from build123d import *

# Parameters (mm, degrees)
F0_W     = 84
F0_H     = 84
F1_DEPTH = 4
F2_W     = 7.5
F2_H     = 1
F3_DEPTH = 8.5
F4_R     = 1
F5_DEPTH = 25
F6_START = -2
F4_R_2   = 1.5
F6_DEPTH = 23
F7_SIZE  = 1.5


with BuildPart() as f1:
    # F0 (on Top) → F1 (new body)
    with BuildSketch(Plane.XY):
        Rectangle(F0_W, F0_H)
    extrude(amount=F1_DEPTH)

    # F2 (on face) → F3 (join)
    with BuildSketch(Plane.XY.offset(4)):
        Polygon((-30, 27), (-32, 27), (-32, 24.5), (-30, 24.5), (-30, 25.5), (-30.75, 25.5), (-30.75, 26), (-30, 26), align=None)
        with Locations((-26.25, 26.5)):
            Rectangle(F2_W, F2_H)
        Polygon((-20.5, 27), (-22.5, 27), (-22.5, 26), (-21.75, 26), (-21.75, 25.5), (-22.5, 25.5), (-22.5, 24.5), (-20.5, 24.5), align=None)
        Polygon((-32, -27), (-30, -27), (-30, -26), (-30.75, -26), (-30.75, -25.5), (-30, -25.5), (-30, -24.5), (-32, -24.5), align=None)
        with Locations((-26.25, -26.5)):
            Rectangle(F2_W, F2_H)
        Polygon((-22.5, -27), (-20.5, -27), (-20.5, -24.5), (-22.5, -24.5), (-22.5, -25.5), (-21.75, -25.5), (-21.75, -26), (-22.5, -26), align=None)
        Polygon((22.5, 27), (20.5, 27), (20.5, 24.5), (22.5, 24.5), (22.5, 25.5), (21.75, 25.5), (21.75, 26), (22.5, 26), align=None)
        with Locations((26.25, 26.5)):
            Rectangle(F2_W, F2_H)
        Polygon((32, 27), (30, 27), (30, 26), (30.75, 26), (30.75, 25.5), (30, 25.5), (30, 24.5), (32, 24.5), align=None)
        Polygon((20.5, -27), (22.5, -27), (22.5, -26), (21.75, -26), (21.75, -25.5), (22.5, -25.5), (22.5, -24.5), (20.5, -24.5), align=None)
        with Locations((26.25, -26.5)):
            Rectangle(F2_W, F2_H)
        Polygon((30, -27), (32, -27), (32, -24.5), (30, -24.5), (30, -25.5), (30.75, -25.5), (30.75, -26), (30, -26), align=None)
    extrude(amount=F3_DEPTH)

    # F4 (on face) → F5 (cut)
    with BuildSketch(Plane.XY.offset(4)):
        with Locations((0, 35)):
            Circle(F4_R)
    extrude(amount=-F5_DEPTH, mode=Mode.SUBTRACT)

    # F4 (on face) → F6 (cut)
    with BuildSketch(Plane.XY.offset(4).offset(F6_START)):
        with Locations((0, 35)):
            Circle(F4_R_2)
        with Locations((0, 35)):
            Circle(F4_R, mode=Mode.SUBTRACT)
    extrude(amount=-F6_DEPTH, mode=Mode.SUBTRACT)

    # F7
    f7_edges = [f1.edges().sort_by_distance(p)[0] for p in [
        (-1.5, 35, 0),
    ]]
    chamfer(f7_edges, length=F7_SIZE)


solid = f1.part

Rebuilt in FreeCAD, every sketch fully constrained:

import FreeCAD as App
import Part
import Sketcher

V = App.Vector
Q = App.Units.Quantity


def edges_at(feature, points):
    """Names of the edges that pass closest to the given points."""
    edges = feature.Shape.Edges
    near = lambda p: min(range(len(edges)), key=lambda i: edges[i].distToShape(Part.Vertex(*p))[0])
    return sorted({f"Edge{near(p) + 1}" for p in points})

doc = App.newDocument("Part")
body = doc.addObject("PartDesign::Body", "Body")

# Sketch on XY plane
sketch1 = doc.addObject("Sketcher::SketchObject", "Sketch")
body.addObject(sketch1)
sketch1.AttachmentSupport = (doc.XY_Plane, [""])
sketch1.MapMode = "FlatFace"
sketch1.addGeometry([
    Part.LineSegment(V(-42, 42, 0), V(-42, -42, 0)),
    Part.LineSegment(V(-42, -42, 0), V(42, -42, 0)),
    Part.LineSegment(V(42, -42, 0), V(42, 42, 0)),
    Part.LineSegment(V(42, 42, 0), V(-42, 42, 0)),
], False)
sketch1.addConstraint([
    Sketcher.Constraint("Coincident", 0, 2, 1, 1),
    Sketcher.Constraint("Coincident", 1, 2, 2, 1),
    Sketcher.Constraint("Coincident", 2, 2, 3, 1),
    Sketcher.Constraint("Coincident", 3, 2, 0, 1),
    Sketcher.Constraint("Vertical", 0),
    Sketcher.Constraint("Horizontal", 1),
    Sketcher.Constraint("Vertical", 2),
    Sketcher.Constraint("Horizontal", 3),
    Sketcher.Constraint("Symmetric", 0, 2, 2, 2, -1, 1),
    Sketcher.Constraint("Equal", 3, 0),
    Sketcher.Constraint("DistanceX", 1, 1, 1, 2, Q("84 mm")),
])
pad1 = doc.addObject("PartDesign::Pad", "Pad")
body.addObject(pad1)
pad1.Profile = sketch1
pad1.Length = 4

# Sketch on XY plane
sketch2 = doc.addObject("Sketcher::SketchObject", "Sketch001")
body.addObject(sketch2)
sketch2.AttachmentSupport = (doc.XY_Plane, [""])
sketch2.MapMode = "FlatFace"
sketch2.AttachmentOffset = App.Placement(V(0, 0, 4), App.Rotation())
sketch2.addGeometry([
    Part.LineSegment(V(-32, 27, 0), V(-32, 24.5, 0)),  # 0
    Part.LineSegment(V(-32, 24.5, 0), V(-30, 24.5, 0)),  # 1
    Part.LineSegment(V(-30, 24.5, 0), V(-30, 25.5, 0)),  # 2
    Part.LineSegment(V(-30, 25.5, 0), V(-30.75, 25.5, 0)),  # 3
    Part.LineSegment(V(-30.75, 25.5, 0), V(-30.75, 26, 0)),  # 4
    Part.LineSegment(V(-30.75, 26, 0), V(-21.75, 26, 0)),  # 5
    Part.LineSegment(V(-21.75, 26, 0), V(-21.75, 25.5, 0)),  # 6
    Part.LineSegment(V(-21.75, 25.5, 0), V(-22.5, 25.5, 0)),  # 7
    Part.LineSegment(V(-22.5, 25.5, 0), V(-22.5, 24.5, 0)),  # 8
    Part.LineSegment(V(-22.5, 24.5, 0), V(-20.5, 24.5, 0)),  # 9
    Part.LineSegment(V(-20.5, 24.5, 0), V(-20.5, 27, 0)),  # 10
    Part.LineSegment(V(-20.5, 27, 0), V(-32, 27, 0)),  # 11
    Part.LineSegment(V(-32, -27, 0), V(-20.5, -27, 0)),  # 12
    Part.LineSegment(V(-20.5, -27, 0), V(-20.5, -24.5, 0)),  # 13
    Part.LineSegment(V(-20.5, -24.5, 0), V(-22.5, -24.5, 0)),  # 14
    Part.LineSegment(V(-22.5, -24.5, 0), V(-22.5, -25.5, 0)),  # 15
    Part.LineSegment(V(-22.5, -25.5, 0), V(-21.75, -25.5, 0)),  # 16
    Part.LineSegment(V(-21.75, -25.5, 0), V(-21.75, -26, 0)),  # 17
    Part.LineSegment(V(-21.75, -26, 0), V(-30.75, -26, 0)),  # 18
    Part.LineSegment(V(-30.75, -26, 0), V(-30.75, -25.5, 0)),  # 19
    Part.LineSegment(V(-30.75, -25.5, 0), V(-30, -25.5, 0)),  # 20
    Part.LineSegment(V(-30, -25.5, 0), V(-30, -24.5, 0)),  # 21
    Part.LineSegment(V(-30, -24.5, 0), V(-32, -24.5, 0)),  # 22
    Part.LineSegment(V(-32, -24.5, 0), V(-32, -27, 0)),  # 23
    Part.LineSegment(V(20.5, 27, 0), V(20.5, 24.5, 0)),  # 24
    Part.LineSegment(V(20.5, 24.5, 0), V(22.5, 24.5, 0)),  # 25
    Part.LineSegment(V(22.5, 24.5, 0), V(22.5, 25.5, 0)),  # 26
    Part.LineSegment(V(22.5, 25.5, 0), V(21.75, 25.5, 0)),  # 27
    Part.LineSegment(V(21.75, 25.5, 0), V(21.75, 26, 0)),  # 28
    Part.LineSegment(V(21.75, 26, 0), V(30.75, 26, 0)),  # 29
    Part.LineSegment(V(30.75, 26, 0), V(30.75, 25.5, 0)),  # 30
    Part.LineSegment(V(30.75, 25.5, 0), V(30, 25.5, 0)),  # 31
    Part.LineSegment(V(30, 25.5, 0), V(30, 24.5, 0)),  # 32
    Part.LineSegment(V(30, 24.5, 0), V(32, 24.5, 0)),  # 33
    Part.LineSegment(V(32, 24.5, 0), V(32, 27, 0)),  # 34
    Part.LineSegment(V(32, 27, 0), V(20.5, 27, 0)),  # 35
    Part.LineSegment(V(20.5, -27, 0), V(32, -27, 0)),  # 36
    Part.LineSegment(V(32, -27, 0), V(32, -24.5, 0)),  # 37
    Part.LineSegment(V(32, -24.5, 0), V(30, -24.5, 0)),  # 38
    Part.LineSegment(V(30, -24.5, 0), V(30, -25.5, 0)),  # 39
    Part.LineSegment(V(30, -25.5, 0), V(30.75, -25.5, 0)),  # 40
    Part.LineSegment(V(30.75, -25.5, 0), V(30.75, -26, 0)),  # 41
    Part.LineSegment(V(30.75, -26, 0), V(21.75, -26, 0)),  # 42
    Part.LineSegment(V(21.75, -26, 0), V(21.75, -25.5, 0)),  # 43
    Part.LineSegment(V(21.75, -25.5, 0), V(22.5, -25.5, 0)),  # 44
    Part.LineSegment(V(22.5, -25.5, 0), V(22.5, -24.5, 0)),  # 45
    Part.LineSegment(V(22.5, -24.5, 0), V(20.5, -24.5, 0)),  # 46
    Part.LineSegment(V(20.5, -24.5, 0), V(20.5, -27, 0)),  # 47
], False)
sketch2.addConstraint([
    Sketcher.Constraint("Coincident", 0, 2, 1, 1),
    Sketcher.Constraint("Coincident", 1, 2, 2, 1),
    Sketcher.Constraint("Coincident", 2, 2, 3, 1),
    Sketcher.Constraint("Coincident", 3, 2, 4, 1),
    Sketcher.Constraint("Coincident", 4, 2, 5, 1),
    Sketcher.Constraint("Coincident", 5, 2, 6, 1),
    Sketcher.Constraint("Coincident", 6, 2, 7, 1),
    Sketcher.Constraint("Coincident", 7, 2, 8, 1),
    Sketcher.Constraint("Coincident", 8, 2, 9, 1),
    Sketcher.Constraint("Coincident", 9, 2, 10, 1),
    Sketcher.Constraint("Coincident", 10, 2, 11, 1),
    Sketcher.Constraint("Coincident", 11, 2, 0, 1),
    Sketcher.Constraint("Coincident", 12, 2, 13, 1),
    Sketcher.Constraint("Coincident", 13, 2, 14, 1),
    Sketcher.Constraint("Coincident", 14, 2, 15, 1),
    Sketcher.Constraint("Coincident", 15, 2, 16, 1),
    Sketcher.Constraint("Coincident", 16, 2, 17, 1),
    Sketcher.Constraint("Coincident", 17, 2, 18, 1),
    Sketcher.Constraint("Coincident", 18, 2, 19, 1),
    Sketcher.Constraint("Coincident", 19, 2, 20, 1),
    Sketcher.Constraint("Coincident", 20, 2, 21, 1),
    Sketcher.Constraint("Coincident", 21, 2, 22, 1),
    Sketcher.Constraint("Coincident", 22, 2, 23, 1),
    Sketcher.Constraint("Coincident", 23, 2, 12, 1),
    Sketcher.Constraint("Coincident", 24, 2, 25, 1),
    Sketcher.Constraint("Coincident", 25, 2, 26, 1),
    Sketcher.Constraint("Coincident", 26, 2, 27, 1),
    Sketcher.Constraint("Coincident", 27, 2, 28, 1),
    Sketcher.Constraint("Coincident", 28, 2, 29, 1),
    Sketcher.Constraint("Coincident", 29, 2, 30, 1),
    Sketcher.Constraint("Coincident", 30, 2, 31, 1),
    Sketcher.Constraint("Coincident", 31, 2, 32, 1),
    Sketcher.Constraint("Coincident", 32, 2, 33, 1),
    Sketcher.Constraint("Coincident", 33, 2, 34, 1),
    Sketcher.Constraint("Coincident", 34, 2, 35, 1),
    Sketcher.Constraint("Coincident", 35, 2, 24, 1),
    Sketcher.Constraint("Coincident", 36, 2, 37, 1),
    Sketcher.Constraint("Coincident", 37, 2, 38, 1),
    Sketcher.Constraint("Coincident", 38, 2, 39, 1),
    Sketcher.Constraint("Coincident", 39, 2, 40, 1),
    Sketcher.Constraint("Coincident", 40, 2, 41, 1),
    Sketcher.Constraint("Coincident", 41, 2, 42, 1),
    Sketcher.Constraint("Coincident", 42, 2, 43, 1),
    Sketcher.Constraint("Coincident", 43, 2, 44, 1),
    Sketcher.Constraint("Coincident", 44, 2, 45, 1),
    Sketcher.Constraint("Coincident", 45, 2, 46, 1),
    Sketcher.Constraint("Coincident", 46, 2, 47, 1),
    Sketcher.Constraint("Coincident", 47, 2, 36, 1),
    Sketcher.Constraint("Vertical", 0),
    Sketcher.Constraint("Horizontal", 1),
    Sketcher.Constraint("Vertical", 2),
    Sketcher.Constraint("Horizontal", 3),
    Sketcher.Constraint("Vertical", 4),
    Sketcher.Constraint("Horizontal", 5),
    Sketcher.Constraint("Vertical", 6),
    Sketcher.Constraint("Horizontal", 7),
    Sketcher.Constraint("Vertical", 8),
    Sketcher.Constraint("Horizontal", 9),
    Sketcher.Constraint("Vertical", 10),
    Sketcher.Constraint("Horizontal", 11),
    Sketcher.Constraint("Horizontal", 12),
    Sketcher.Constraint("Vertical", 13),
    Sketcher.Constraint("Horizontal", 14),
    Sketcher.Constraint("Vertical", 15),
    Sketcher.Constraint("Horizontal", 16),
    Sketcher.Constraint("Vertical", 17),
    Sketcher.Constraint("Horizontal", 18),
    Sketcher.Constraint("Vertical", 19),
    Sketcher.Constraint("Horizontal", 20),
    Sketcher.Constraint("Vertical", 21),
    Sketcher.Constraint("Horizontal", 22),
    Sketcher.Constraint("Vertical", 23),
    Sketcher.Constraint("Vertical", 24),
    Sketcher.Constraint("Horizontal", 25),
    Sketcher.Constraint("Vertical", 26),
    Sketcher.Constraint("Horizontal", 27),
    Sketcher.Constraint("Vertical", 28),
    Sketcher.Constraint("Horizontal", 29),
    Sketcher.Constraint("Vertical", 30),
    Sketcher.Constraint("Horizontal", 31),
    Sketcher.Constraint("Vertical", 32),
    Sketcher.Constraint("Horizontal", 33),
    Sketcher.Constraint("Vertical", 34),
    Sketcher.Constraint("Horizontal", 35),
    Sketcher.Constraint("Horizontal", 36),
    Sketcher.Constraint("Vertical", 37),
    Sketcher.Constraint("Horizontal", 38),
    Sketcher.Constraint("Vertical", 39),
    Sketcher.Constraint("Horizontal", 40),
    Sketcher.Constraint("Vertical", 41),
    Sketcher.Constraint("Horizontal", 42),
    Sketcher.Constraint("Vertical", 43),
    Sketcher.Constraint("Horizontal", 44),
    Sketcher.Constraint("Vertical", 45),
    Sketcher.Constraint("Horizontal", 46),
    Sketcher.Constraint("Vertical", 47),
    Sketcher.Constraint("Symmetric", 13, 2, 24, 2, -1, 1),
    Sketcher.Constraint("Symmetric", 15, 2, 26, 2, -1, 1),
    Sketcher.Constraint("Symmetric", 17, 2, 28, 2, -1, 1),
    Sketcher.Constraint("Symmetric", 19, 2, 30, 2, -1, 1),
    Sketcher.Constraint("Symmetric", 21, 2, 32, 2, -1, 1),
    Sketcher.Constraint("Symmetric", 23, 2, 34, 2, -1, 1),
    Sketcher.Constraint("Symmetric", 11, 2, 36, 2, -1, 1),
    Sketcher.Constraint("Symmetric", 1, 2, 38, 2, -1, 1),
    Sketcher.Constraint("Symmetric", 3, 2, 40, 2, -1, 1),
    Sketcher.Constraint("Symmetric", 5, 2, 42, 2, -1, 1),
    Sketcher.Constraint("Symmetric", 7, 2, 44, 2, -1, 1),
    Sketcher.Constraint("Symmetric", 9, 2, 46, 2, -1, 1),
    Sketcher.Constraint("Symmetric", 9, 2, 24, 2, -2),
    Sketcher.Constraint("Symmetric", 7, 2, 26, 2, -2),
    Sketcher.Constraint("Symmetric", 5, 2, 28, 2, -2),
    Sketcher.Constraint("Symmetric", 3, 2, 30, 2, -2),
    Sketcher.Constraint("Symmetric", 1, 2, 32, 2, -2),
    Sketcher.Constraint("Symmetric", 11, 2, 34, 2, -2),
    Sketcher.Constraint("Horizontal", 3, 2, 6, 2),
    Sketcher.Constraint("Horizontal", 1, 2, 8, 2),
    Sketcher.Constraint("Equal", 3, 7),
    Sketcher.Constraint("Equal", 1, 9),
    Sketcher.Constraint("DistanceX", 1, 1, 1, 2, Q("2 mm")),
    Sketcher.Constraint("DistanceX", 5, 1, 5, 2, Q("9 mm")),
    Sketcher.Constraint("DistanceY", 2, 1, 2, 2, Q("1 mm")),
    Sketcher.Constraint("DistanceX", 11, 2, 11, 1, Q("11.5 mm")),
    Sketcher.Constraint("DistanceY", 0, 2, 0, 1, Q("2.5 mm")),
    Sketcher.Constraint("DistanceY", 4, 1, 4, 2, Q("0.5 mm")),
    Sketcher.Constraint("DistanceX", 0, 2, -1, 1, Q("32 mm")),
    Sketcher.Constraint("DistanceY", -1, 1, 4, 2, Q("26 mm")),
])
pad2 = doc.addObject("PartDesign::Pad", "Pad001")
body.addObject(pad2)
pad2.Profile = sketch2
pad2.Length = 8.5

# Sketch on XY plane
sketch3 = doc.addObject("Sketcher::SketchObject", "Sketch002")
body.addObject(sketch3)
sketch3.AttachmentSupport = (doc.XY_Plane, [""])
sketch3.MapMode = "FlatFace"
sketch3.AttachmentOffset = App.Placement(V(0, 0, 4), App.Rotation())
sketch3.addGeometry(Part.Circle(V(0, 35, 0), V(0, 0, 1), 1), False)
sketch3.addConstraint([
    Sketcher.Constraint("PointOnObject", 0, 3, -2),
    Sketcher.Constraint("Diameter", 0, Q("2 mm")),
    Sketcher.Constraint("DistanceY", -1, 1, 0, 3, Q("35 mm")),
])
pocket1 = doc.addObject("PartDesign::Pocket", "Pocket")
body.addObject(pocket1)
pocket1.Profile = sketch3
pocket1.Length = 25

# Sketch on XY plane
sketch4 = doc.addObject("Sketcher::SketchObject", "Sketch003")
body.addObject(sketch4)
sketch4.AttachmentSupport = (doc.XY_Plane, [""])
sketch4.MapMode = "FlatFace"
sketch4.AttachmentOffset = App.Placement(V(0, 0, 2), App.Rotation())
sketch4.addGeometry([
    Part.Circle(V(0, 35, 0), V(0, 0, 1), 1.5),
    Part.Circle(V(0, 35, 0), V(0, 0, 1), 1),
], False)
sketch4.addConstraint([
    Sketcher.Constraint("Coincident", 1, 3, 0, 3),
    Sketcher.Constraint("PointOnObject", 0, 3, -2),
    Sketcher.Constraint("Diameter", 0, Q("3 mm")),
    Sketcher.Constraint("Diameter", 1, Q("2 mm")),
    Sketcher.Constraint("DistanceY", -1, 1, 0, 3, Q("35 mm")),
])
pocket2 = doc.addObject("PartDesign::Pocket", "Pocket001")
body.addObject(pocket2)
pocket2.Profile = sketch4
pocket2.Length = 23
doc.recompute()

chamfer = doc.addObject("PartDesign::Chamfer", "Chamfer")
body.addObject(chamfer)
chamfer.Base = (pocket2, edges_at(pocket2, [(-1.5, 35, 0)]))
chamfer.Size = 1.5

doc.recompute()
